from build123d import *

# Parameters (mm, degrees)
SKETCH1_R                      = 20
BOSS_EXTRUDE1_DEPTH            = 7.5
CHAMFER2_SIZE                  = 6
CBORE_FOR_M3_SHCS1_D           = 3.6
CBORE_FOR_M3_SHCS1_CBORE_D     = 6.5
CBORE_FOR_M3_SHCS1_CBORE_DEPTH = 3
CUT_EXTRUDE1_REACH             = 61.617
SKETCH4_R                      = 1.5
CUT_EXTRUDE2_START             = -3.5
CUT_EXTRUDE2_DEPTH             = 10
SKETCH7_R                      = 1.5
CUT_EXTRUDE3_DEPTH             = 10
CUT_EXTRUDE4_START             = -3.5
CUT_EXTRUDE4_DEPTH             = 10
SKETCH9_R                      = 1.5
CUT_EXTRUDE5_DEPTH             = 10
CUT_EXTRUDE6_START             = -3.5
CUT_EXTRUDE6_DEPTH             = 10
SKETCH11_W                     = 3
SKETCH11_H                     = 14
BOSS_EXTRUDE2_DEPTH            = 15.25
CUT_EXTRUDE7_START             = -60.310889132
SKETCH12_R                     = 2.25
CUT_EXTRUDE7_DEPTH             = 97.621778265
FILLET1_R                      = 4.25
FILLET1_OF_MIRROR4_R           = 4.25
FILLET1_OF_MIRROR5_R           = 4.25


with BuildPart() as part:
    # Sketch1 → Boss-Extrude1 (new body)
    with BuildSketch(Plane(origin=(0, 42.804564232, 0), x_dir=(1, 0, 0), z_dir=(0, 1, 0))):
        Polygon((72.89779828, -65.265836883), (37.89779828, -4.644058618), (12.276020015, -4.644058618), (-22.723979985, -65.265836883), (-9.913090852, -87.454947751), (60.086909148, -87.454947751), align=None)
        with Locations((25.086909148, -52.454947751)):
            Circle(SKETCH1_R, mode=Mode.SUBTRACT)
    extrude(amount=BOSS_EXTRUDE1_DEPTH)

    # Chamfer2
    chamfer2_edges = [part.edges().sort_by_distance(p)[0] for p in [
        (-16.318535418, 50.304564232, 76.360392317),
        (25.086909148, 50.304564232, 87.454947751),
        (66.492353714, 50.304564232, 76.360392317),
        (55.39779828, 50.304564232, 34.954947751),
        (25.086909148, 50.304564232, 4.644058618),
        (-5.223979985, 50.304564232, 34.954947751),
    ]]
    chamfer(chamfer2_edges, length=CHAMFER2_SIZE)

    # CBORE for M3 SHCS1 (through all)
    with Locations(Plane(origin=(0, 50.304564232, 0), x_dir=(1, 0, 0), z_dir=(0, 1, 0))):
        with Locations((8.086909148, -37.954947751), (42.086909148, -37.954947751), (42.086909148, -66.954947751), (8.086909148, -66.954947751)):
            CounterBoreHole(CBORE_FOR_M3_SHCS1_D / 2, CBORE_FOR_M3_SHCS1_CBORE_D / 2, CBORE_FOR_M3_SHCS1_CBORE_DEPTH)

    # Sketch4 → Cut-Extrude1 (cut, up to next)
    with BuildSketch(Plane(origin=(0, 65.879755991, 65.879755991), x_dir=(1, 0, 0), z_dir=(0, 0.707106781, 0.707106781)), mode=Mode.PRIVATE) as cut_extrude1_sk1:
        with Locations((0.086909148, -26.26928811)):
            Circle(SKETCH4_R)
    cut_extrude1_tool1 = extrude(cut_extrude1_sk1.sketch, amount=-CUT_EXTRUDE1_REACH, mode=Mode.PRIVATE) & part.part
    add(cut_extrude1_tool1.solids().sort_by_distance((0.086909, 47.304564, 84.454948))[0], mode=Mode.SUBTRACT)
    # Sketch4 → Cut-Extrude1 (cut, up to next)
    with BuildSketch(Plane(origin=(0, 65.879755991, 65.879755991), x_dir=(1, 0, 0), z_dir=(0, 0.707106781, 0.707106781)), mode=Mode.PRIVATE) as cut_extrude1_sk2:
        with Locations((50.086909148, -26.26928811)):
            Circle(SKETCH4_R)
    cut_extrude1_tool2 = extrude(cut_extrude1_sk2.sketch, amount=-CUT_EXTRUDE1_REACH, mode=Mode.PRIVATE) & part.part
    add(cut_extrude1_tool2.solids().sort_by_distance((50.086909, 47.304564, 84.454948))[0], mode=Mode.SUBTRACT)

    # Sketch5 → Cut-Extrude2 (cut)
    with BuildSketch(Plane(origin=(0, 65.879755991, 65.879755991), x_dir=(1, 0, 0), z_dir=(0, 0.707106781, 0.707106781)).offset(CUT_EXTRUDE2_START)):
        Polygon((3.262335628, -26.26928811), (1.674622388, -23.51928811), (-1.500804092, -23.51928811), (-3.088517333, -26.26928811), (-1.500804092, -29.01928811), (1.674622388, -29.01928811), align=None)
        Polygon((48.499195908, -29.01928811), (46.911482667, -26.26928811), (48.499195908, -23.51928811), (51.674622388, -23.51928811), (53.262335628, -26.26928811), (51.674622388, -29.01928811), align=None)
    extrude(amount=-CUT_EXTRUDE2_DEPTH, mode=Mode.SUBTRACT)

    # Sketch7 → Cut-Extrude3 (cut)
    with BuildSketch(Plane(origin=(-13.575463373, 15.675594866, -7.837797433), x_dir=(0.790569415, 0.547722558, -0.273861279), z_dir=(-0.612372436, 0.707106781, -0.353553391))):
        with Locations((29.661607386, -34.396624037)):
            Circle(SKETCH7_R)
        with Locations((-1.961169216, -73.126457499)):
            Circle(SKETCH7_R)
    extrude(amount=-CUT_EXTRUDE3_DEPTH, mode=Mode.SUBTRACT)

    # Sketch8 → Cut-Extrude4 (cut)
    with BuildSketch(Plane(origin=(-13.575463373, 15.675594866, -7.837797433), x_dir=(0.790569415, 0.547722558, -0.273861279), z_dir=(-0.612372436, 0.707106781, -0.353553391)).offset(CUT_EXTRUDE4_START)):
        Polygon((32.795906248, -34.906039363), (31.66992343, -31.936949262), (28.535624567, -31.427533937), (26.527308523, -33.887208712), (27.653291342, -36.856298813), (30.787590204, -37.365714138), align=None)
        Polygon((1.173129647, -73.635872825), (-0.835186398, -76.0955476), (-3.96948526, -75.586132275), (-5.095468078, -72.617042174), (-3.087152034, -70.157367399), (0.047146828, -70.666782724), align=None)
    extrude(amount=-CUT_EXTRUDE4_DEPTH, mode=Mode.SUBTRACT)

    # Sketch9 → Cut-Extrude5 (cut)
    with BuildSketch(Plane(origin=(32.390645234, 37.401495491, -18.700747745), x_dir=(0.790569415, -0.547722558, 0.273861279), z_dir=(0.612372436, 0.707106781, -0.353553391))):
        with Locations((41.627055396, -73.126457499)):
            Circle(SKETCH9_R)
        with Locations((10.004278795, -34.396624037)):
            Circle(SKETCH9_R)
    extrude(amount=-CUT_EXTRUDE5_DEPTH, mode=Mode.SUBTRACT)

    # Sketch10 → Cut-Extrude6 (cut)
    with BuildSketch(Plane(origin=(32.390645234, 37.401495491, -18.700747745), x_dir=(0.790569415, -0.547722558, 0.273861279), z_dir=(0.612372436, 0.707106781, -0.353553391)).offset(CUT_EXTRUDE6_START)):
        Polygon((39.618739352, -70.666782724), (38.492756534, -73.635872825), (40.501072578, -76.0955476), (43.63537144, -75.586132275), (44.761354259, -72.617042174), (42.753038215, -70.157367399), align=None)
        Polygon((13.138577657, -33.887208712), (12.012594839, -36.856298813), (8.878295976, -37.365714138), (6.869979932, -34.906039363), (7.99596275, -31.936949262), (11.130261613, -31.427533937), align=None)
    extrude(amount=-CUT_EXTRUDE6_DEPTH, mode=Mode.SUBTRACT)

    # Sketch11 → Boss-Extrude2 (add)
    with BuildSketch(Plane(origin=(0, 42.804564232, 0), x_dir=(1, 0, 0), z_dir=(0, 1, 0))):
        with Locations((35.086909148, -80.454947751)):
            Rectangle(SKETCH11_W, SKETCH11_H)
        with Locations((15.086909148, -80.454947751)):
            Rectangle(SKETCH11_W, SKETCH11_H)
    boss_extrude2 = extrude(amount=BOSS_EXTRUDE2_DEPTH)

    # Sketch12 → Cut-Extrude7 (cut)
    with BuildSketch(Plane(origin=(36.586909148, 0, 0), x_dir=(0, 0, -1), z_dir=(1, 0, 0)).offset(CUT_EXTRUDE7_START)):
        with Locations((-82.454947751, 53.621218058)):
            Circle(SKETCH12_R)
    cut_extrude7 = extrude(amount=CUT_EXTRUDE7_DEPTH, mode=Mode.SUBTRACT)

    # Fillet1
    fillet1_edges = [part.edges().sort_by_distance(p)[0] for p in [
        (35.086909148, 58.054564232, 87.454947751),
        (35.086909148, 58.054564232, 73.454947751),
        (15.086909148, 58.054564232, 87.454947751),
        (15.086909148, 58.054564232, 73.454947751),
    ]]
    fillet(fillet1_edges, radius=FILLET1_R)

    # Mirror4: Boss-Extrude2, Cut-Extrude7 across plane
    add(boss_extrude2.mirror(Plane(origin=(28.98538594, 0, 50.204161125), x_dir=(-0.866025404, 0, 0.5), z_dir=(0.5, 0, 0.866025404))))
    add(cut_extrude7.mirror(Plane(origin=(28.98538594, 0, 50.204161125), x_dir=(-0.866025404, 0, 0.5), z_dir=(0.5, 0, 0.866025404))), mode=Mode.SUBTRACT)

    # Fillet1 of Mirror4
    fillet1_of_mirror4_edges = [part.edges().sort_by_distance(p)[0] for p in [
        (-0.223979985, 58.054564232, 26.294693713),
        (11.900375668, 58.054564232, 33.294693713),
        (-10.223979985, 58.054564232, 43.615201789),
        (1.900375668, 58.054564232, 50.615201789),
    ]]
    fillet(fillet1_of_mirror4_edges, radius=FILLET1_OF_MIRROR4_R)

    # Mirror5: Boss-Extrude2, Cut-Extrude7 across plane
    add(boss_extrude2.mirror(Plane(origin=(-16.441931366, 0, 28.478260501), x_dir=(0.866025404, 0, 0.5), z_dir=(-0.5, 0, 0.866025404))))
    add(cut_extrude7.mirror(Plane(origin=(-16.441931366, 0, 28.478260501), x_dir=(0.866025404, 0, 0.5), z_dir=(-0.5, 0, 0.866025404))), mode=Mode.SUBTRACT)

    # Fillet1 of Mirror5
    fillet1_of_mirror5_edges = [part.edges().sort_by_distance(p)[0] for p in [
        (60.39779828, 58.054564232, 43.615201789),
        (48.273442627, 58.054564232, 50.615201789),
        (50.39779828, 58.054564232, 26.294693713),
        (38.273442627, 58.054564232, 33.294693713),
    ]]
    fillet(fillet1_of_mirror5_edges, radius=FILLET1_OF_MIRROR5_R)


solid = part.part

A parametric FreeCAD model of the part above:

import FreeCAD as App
import Part
import Sketcher

V = App.Vector
Q = App.Units.Quantity


def edges_at(feature, points):
    """Names of the edges that pass closest to the given points."""
    edges = feature.Shape.Edges
    near = lambda p: min(range(len(edges)), key=lambda i: edges[i].distToShape(Part.Vertex(*p))[0])
    return sorted({f"Edge{near(p) + 1}" for p in points})

doc = App.newDocument("Part")
body = doc.addObject("PartDesign::Body", "Body")

sketch1 = body.newObject("Sketcher::SketchObject", "Sketch")
sketch1.AttachmentSupport = (doc.getObject("XZ_Plane"), [""])
sketch1.MapMode = "FlatFace"
sketch1.AttachmentOffset = App.Placement(V(0, 0, -42.804564), App.Rotation())
sketch1.addGeometry([
    Part.LineSegment(V(72.897798, 65.265837, 0), V(37.897798, 4.644059, 0)),
    Part.LineSegment(V(37.897798, 4.644059, 0), V(12.27602, 4.644059, 0)),
    Part.LineSegment(V(12.27602, 4.644059, 0), V(-22.72398, 65.265837, 0)),
    Part.LineSegment(V(-22.72398, 65.265837, 0), V(-9.913091, 87.454948, 0)),
    Part.LineSegment(V(-9.913091, 87.454948, 0), V(60.086909, 87.454948, 0)),
    Part.LineSegment(V(60.086909, 87.454948, 0), V(72.897798, 65.265837, 0)),
    Part.Circle(V(25.086909, 52.454948, 0), V(0, 0, 1), 20),
], False)
sketch1.addConstraint([
    Sketcher.Constraint("Coincident", 0, 2, 1, 1),
    Sketcher.Constraint("Coincident", 1, 2, 2, 1),
    Sketcher.Constraint("Coincident", 2, 2, 3, 1),
    Sketcher.Constraint("Coincident", 3, 2, 4, 1),
    Sketcher.Constraint("Coincident", 4, 2, 5, 1),
    Sketcher.Constraint("Coincident", 5, 2, 0, 1),
    Sketcher.Constraint("Horizontal", 1),
    Sketcher.Constraint("Horizontal", 4),
    Sketcher.Constraint("Parallel", 0, 3),
    Sketcher.Constraint("Parallel", 2, 5),
    Sketcher.Constraint("Horizontal", 2, 2, 5, 2),
    Sketcher.Constraint("Equal", 0, 2),
    Sketcher.Constraint("Diameter", 6, 40.0),
    Sketcher.Constraint("DistanceX", 4, 1, 4, 2, 70.0),
    Sketcher.Constraint("Angle", 0, Q("-120 deg")),
    Sketcher.Constraint("Distance", 0, 70.0),
    Sketcher.Constraint("DistanceX", 3, 2, 6, 3, 35.0),
    Sketcher.Constraint("DistanceY", 6, 3, 3, 2, 35.0),
    Sketcher.Constraint("DistanceX", 1, 2, 1, 1, 25.621778),
    Sketcher.Constraint("DistanceX", -1, 1, 0, 2, 37.897798),
    Sketcher.Constraint("DistanceY", -1, 1, 0, 2, 4.644059),
])
pad1 = body.newObject("PartDesign::Pad", "Pad")
pad1.Profile = sketch1
pad1.Length = 7.5
pad1.Reversed = True
doc.recompute()

chamfer = body.newObject("PartDesign::Chamfer", "Chamfer")
chamfer.Base = (pad1, edges_at(pad1, [
    (-16.319, 50.305, 76.36),
    (25.087, 50.305, 87.455),
    (66.492, 50.305, 76.36),
    (55.398, 50.305, 34.955),
    (25.087, 50.305, 4.644),
    (-5.224, 50.305, 34.955),
]))
chamfer.Size = 6

sketch2 = body.newObject("Sketcher::SketchObject", "Sketch001")
sketch2.AttachmentSupport = (doc.getObject("XZ_Plane"), [""])
sketch2.MapMode = "FlatFace"
sketch2.AttachmentOffset = App.Placement(V(0, 0, -50.304564), App.Rotation())
sketch2.addGeometry([
    Part.Circle(V(8.086909, 37.954948, 0), V(0, 0, 1), 1.8),
    Part.Circle(V(42.086909, 37.954948, 0), V(0, 0, 1), 1.8),
    Part.Circle(V(42.086909, 66.954948, 0), V(0, 0, 1), 1.8),
    Part.Circle(V(8.086909, 66.954948, 0), V(0, 0, 1), 1.8),
], False)
sketch2.addConstraint([
    Sketcher.Constraint("Equal", 0, 1),
    Sketcher.Constraint("Equal", 1, 2),
    Sketcher.Constraint("Equal", 2, 3),
    Sketcher.Constraint("Horizontal", 0, 3, 1, 3),
    Sketcher.Constraint("Horizontal", 2, 3, 3, 3),
    Sketcher.Constraint("Vertical", 1, 3, 2, 3),
    Sketcher.Constraint("Vertical", 0, 3, 3, 3),
    Sketcher.Constraint("Diameter", 0, 3.6),
    Sketcher.Constraint("DistanceX", 0, 3, 1, 3, 34.0),
    Sketcher.Constraint("DistanceY", 1, 3, 2, 3, 29.0),
    Sketcher.Constraint("DistanceX", -1, 1, 0, 3, 8.086909),
    Sketcher.Constraint("DistanceY", -1, 1, 0, 3, 37.954948),
])
doc.recompute()
hole = body.newObject("PartDesign::Hole", "Hole")
hole.Profile = sketch2
hole.ThreadType = "None"
hole.Diameter = 3.6
hole.DepthType = "ThroughAll"
hole.HoleCutType = "Counterbore"
hole.HoleCutDiameter = 6.5
hole.HoleCutDepth = 3
hole.Reversed = True

sketch3 = body.newObject("Sketcher::SketchObject", "Sketch002")
sketch3.Placement = App.Placement(V(0, 65.879756, 65.879756), App.Rotation(V(1, 0, 0), V(0, 0.707106781, -0.707106781), V(0, 0.707106781, 0.707106781), "ZXY"))
sketch3.addGeometry(Part.Circle(V(0.086909, -26.269288, 0), V(0, 0, 1), 1.5), False)
sketch3.addConstraint([
    Sketcher.Constraint("Diameter", 0, 3.0),
    Sketcher.Constraint("DistanceX", -1, 1, 0, 3, 0.086909),
    Sketcher.Constraint("DistanceY", 0, 3, -1, 1, 26.269288),
])
pocket1 = body.newObject("PartDesign::Pocket", "Pocket")
pocket1.Profile = sketch3
pocket1.Type = "UpToFirst"

sketch4 = body.newObject("Sketcher::SketchObject", "Sketch003")
sketch4.Placement = App.Placement(V(0, 65.879756, 65.879756), App.Rotation(V(1, 0, 0), V(0, 0.707106781, -0.707106781), V(0, 0.707106781, 0.707106781), "ZXY"))
sketch4.addGeometry(Part.Circle(V(50.086909, -26.269288, 0), V(0, 0, 1), 1.5), False)
sketch4.addConstraint([
    Sketcher.Constraint("Diameter", 0, 3.0),
    Sketcher.Constraint("DistanceX", -1, 1, 0, 3, 50.086909),
    Sketcher.Constraint("DistanceY", 0, 3, -1, 1, 26.269288),
])
pocket2 = body.newObject("PartDesign::Pocket", "Pocket001")
pocket2.Profile = sketch4
pocket2.Type = "UpToFirst"

sketch5 = body.newObject("Sketcher::SketchObject", "Sketch004")
sketch5.Placement = App.Placement(V(0, 63.404882, 63.404882), App.Rotation(V(1, 0, 0), V(0, 0.707106781, -0.707106781), V(0, 0.707106781, 0.707106781), "ZXY"))
sketch5.addGeometry([
    Part.LineSegment(V(3.262336, -26.269288, 0), V(1.674622, -23.519288, 0)),
    Part.LineSegment(V(1.674622, -23.519288, 0), V(-1.500804, -23.519288, 0)),
    Part.LineSegment(V(-1.500804, -23.519288, 0), V(-3.088517, -26.269288, 0)),
    Part.LineSegment(V(-3.088517, -26.269288, 0), V(-1.500804, -29.019288, 0)),
    Part.LineSegment(V(-1.500804, -29.019288, 0), V(1.674622, -29.019288, 0)),
    Part.LineSegment(V(1.674622, -29.019288, 0), V(3.262336, -26.269288, 0)),
    Part.LineSegment(V(46.911483, -26.269288, 0), V(48.499196, -29.019288, 0)),
    Part.LineSegment(V(48.499196, -29.019288, 0), V(51.674622, -29.019288, 0)),
    Part.LineSegment(V(51.674622, -29.019288, 0), V(53.262336, -26.269288, 0)),
    Part.LineSegment(V(53.262336, -26.269288, 0), V(51.674622, -23.519288, 0)),
    Part.LineSegment(V(51.674622, -23.519288, 0), V(48.499196, -23.519288, 0)),
    Part.LineSegment(V(48.499196, -23.519288, 0), V(46.911483, -26.269288, 0)),
], False)
sketch5.addConstraint([
    Sketcher.Constraint("Coincident", 0, 2, 1, 1),
    Sketcher.Constraint("Coincident", 1, 2, 2, 1),
    Sketcher.Constraint("Coincident", 2, 2, 3, 1),
    Sketcher.Constraint("Coincident", 3, 2, 4, 1),
    Sketcher.Constraint("Coincident", 4, 2, 5, 1),
    Sketcher.Constraint("Coincident", 5, 2, 0, 1),
    Sketcher.Constraint("Coincident", 6, 2, 7, 1),
    Sketcher.Constraint("Coincident", 7, 2, 8, 1),
    Sketcher.Constraint("Coincident", 8, 2, 9, 1),
    Sketcher.Constraint("Coincident", 9, 2, 10, 1),
    Sketcher.Constraint("Coincident", 10, 2, 11, 1),
    Sketcher.Constraint("Coincident", 11, 2, 6, 1),
    Sketcher.Constraint("Horizontal", 1),
    Sketcher.Constraint("Horizontal", 4),
    Sketcher.Constraint("Horizontal", 7),
    Sketcher.Constraint("Horizontal", 10),
    Sketcher.Constraint("Parallel", 0, 3),
    Sketcher.Constraint("Parallel", 2, 5),
    Sketcher.Constraint("Parallel", 3, 6),
    Sketcher.Constraint("Parallel", 5, 8),
    Sketcher.Constraint("Parallel", 6, 9),
    Sketcher.Constraint("Parallel", 8, 11),
    Sketcher.Constraint("Horizontal", 2, 2, 5, 2),
    Sketcher.Constraint("Horizontal", 4, 2, 6, 2),
    Sketcher.Constraint("Horizontal", 5, 2, 8, 2),
    Sketcher.Constraint("Horizontal", 1, 2, 9, 2),
    Sketcher.Constraint("Horizontal", 8, 2, 11, 2),
    Sketcher.Constraint("Vertical", 1, 2, 3, 2),
    Sketcher.Constraint("Vertical", 0, 2, 4, 2),
    Sketcher.Constraint("Equal", 4, 7),
    Sketcher.Constraint("Angle", 0, Q("120 deg")),
    Sketcher.Constraint("DistanceX", 3, 2, 6, 2, 50.0),
    Sketcher.Constraint("DistanceY", 3, 2, 1, 2, 5.5),
    Sketcher.Constraint("DistanceX", 1, 2, 1, 1, 3.175426),
    Sketcher.Constraint("DistanceY", 0, 2, -1, 1, 23.519288),
    Sketcher.Constraint("DistanceX", -1, 1, 0, 2, 1.674622),
])
pocket3 = body.newObject("PartDesign::Pocket", "Pocket002")
pocket3.Profile = sketch5
pocket3.Length = 10

sketch6 = body.newObject("Sketcher::SketchObject", "Sketch005")
sketch6.Placement = App.Placement(V(-13.575463, 15.675595, -7.837797), App.Rotation(V(0.790569415, 0.547722558, -0.273861279), V(0, -0.447213596, -0.894427191), V(-0.612372436, 0.707106781, -0.353553391), "ZXY"))
sketch6.addGeometry([
    Part.Circle(V(29.661607, -34.396624, 0), V(0, 0, 1), 1.5),
    Part.Circle(V(-1.961169, -73.126458, 0), V(0, 0, 1), 1.5),
], False)
sketch6.addConstraint([
    Sketcher.Constraint("Equal", 0, 1),
    Sketcher.Constraint("Diameter", 0, 3.0),
    Sketcher.Constraint("DistanceX", 1, 3, -1, 1, 1.961169),
    Sketcher.Constraint("DistanceX", -1, 1, 0, 3, 29.661607),
    Sketcher.Constraint("DistanceY", 0, 3, -1, 1, 34.396624),
    Sketcher.Constraint("DistanceY", 1, 3, -1, 1, 73.126458),
])
pocket4 = body.newObject("PartDesign::Pocket", "Pocket003")
pocket4.Profile = sketch6
pocket4.Length = 10

sketch7 = body.newObject("Sketcher::SketchObject", "Sketch006")
sketch7.Placement = App.Placement(V(-11.43216, 13.200721, -6.600361), App.Rotation(V(0.790569415, 0.547722558, -0.273861279), V(0, -0.447213596, -0.894427191), V(-0.612372436, 0.707106781, -0.353553391), "ZXY"))
sketch7.addGeometry([
    Part.LineSegment(V(32.795906, -34.906039, 0), V(31.669923, -31.936949, 0)),
    Part.LineSegment(V(31.669923, -31.936949, 0), V(28.535625, -31.427534, 0)),
    Part.LineSegment(V(28.535625, -31.427534, 0), V(26.527309, -33.887209, 0)),
    Part.LineSegment(V(26.527309, -33.887209, 0), V(27.653291, -36.856299, 0)),
    Part.LineSegment(V(27.653291, -36.856299, 0), V(30.78759, -37.365714, 0)),
    Part.LineSegment(V(30.78759, -37.365714, 0), V(32.795906, -34.906039, 0)),
    Part.LineSegment(V(-0.835186, -76.095548, 0), V(1.17313, -73.635873, 0)),
    Part.LineSegment(V(1.17313, -73.635873, 0), V(0.047147, -70.666783, 0)),
    Part.LineSegment(V(0.047147, -70.666783, 0), V(-3.087152, -70.157367, 0)),
    Part.LineSegment(V(-3.087152, -70.157367, 0), V(-5.095468, -72.617042, 0)),
    Part.LineSegment(V(-5.095468, -72.617042, 0), V(-3.969485, -75.586132, 0)),
    Part.LineSegment(V(-3.969485, -75.586132, 0), V(-0.835186, -76.095548, 0)),
], False)
sketch7.addConstraint([
    Sketcher.Constraint("Coincident", 0, 2, 1, 1),
    Sketcher.Constraint("Coincident", 1, 2, 2, 1),
    Sketcher.Constraint("Coincident", 2, 2, 3, 1),
    Sketcher.Constraint("Coincident", 3, 2, 4, 1),
    Sketcher.Constraint("Coincident", 4, 2, 5, 1),
    Sketcher.Constraint("Coincident", 5, 2, 0, 1),
    Sketcher.Constraint("Coincident", 6, 2, 7, 1),
    Sketcher.Constraint("Coincident", 7, 2, 8, 1),
    Sketcher.Constraint("Coincident", 8, 2, 9, 1),
    Sketcher.Constraint("Coincident", 9, 2, 10, 1),
    Sketcher.Constraint("Coincident", 10, 2, 11, 1),
    Sketcher.Constraint("Coincident", 11, 2, 6, 1),
    Sketcher.Constraint("Parallel", 0, 3),
    Sketcher.Constraint("Parallel", 1, 4),
    Sketcher.Constraint("Parallel", 2, 5),
    Sketcher.Constraint("Parallel", 5, 6),
    Sketcher.Constraint("Parallel", 3, 7),
    Sketcher.Constraint("Parallel", 4, 8),
    Sketcher.Constraint("Parallel", 6, 9),
    Sketcher.Constraint("Parallel", 7, 10),
    Sketcher.Constraint("Parallel", 8, 11),
    Sketcher.Constraint("Equal", 0, 1),
    Sketcher.Constraint("Equal", 1, 2),
    Sketcher.Constraint("Equal", 2, 3),
    Sketcher.Constraint("Equal", 5, 6),
    Sketcher.Constraint("Equal", 6, 7),
    Sketcher.Constraint("Equal", 7, 8),
    Sketcher.Constraint("Equal", 8, 9),
    Sketcher.Constraint("DistanceY", 3, 2, -1, 1, 36.856299),
    Sketcher.Constraint("DistanceX", 1, 2, 0, 2, 3.134299),
    Sketcher.Constraint("DistanceY", 0, 2, -1, 1, 31.936949),
    Sketcher.Constraint("DistanceX", -1, 1, 2, 2, 26.527309),
    Sketcher.Constraint("DistanceY", 2, 2, -1, 1, 33.887209),
    Sketcher.Constraint("DistanceX", -1, 1, 3, 2, 27.653291),
    Sketcher.Constraint("DistanceX", -1, 1, 6, 2, 1.17313),
    Sketcher.Constraint("DistanceY", 6, 2, 4, 2, 36.270159),
])
pocket5 = body.newObject("PartDesign::Pocket", "Pocket004")
pocket5.Profile = sketch7
pocket5.Length = 10

sketch8 = body.newObject("Sketcher::SketchObject", "Sketch007")
sketch8.Placement = App.Placement(V(32.390645, 37.401495, -18.700748), App.Rotation(V(0.790569415, -0.547722558, 0.273861279), V(0, -0.447213596, -0.894427191), V(0.612372436, 0.707106781, -0.353553391), "ZXY"))
sketch8.addGeometry([
    Part.Circle(V(41.627055, -73.126458, 0), V(0, 0, 1), 1.5),
    Part.Circle(V(10.004279, -34.396624, 0), V(0, 0, 1), 1.5),
], False)
sketch8.addConstraint([
    Sketcher.Constraint("Equal", 0, 1),
    Sketcher.Constraint("Diameter", 0, 3.0),
    Sketcher.Constraint("DistanceX", -1, 1, 1, 3, 10.004279),
    Sketcher.Constraint("DistanceX", -1, 1, 0, 3, 41.627055),
    Sketcher.Constraint("DistanceY", 0, 3, -1, 1, 73.126458),
    Sketcher.Constraint("DistanceY", 1, 3, -1, 1, 34.396624),
])
pocket6 = body.newObject("PartDesign::Pocket", "Pocket005")
pocket6.Profile = sketch8
pocket6.Length = 10

sketch9 = body.newObject("Sketcher::SketchObject", "Sketch008")
sketch9.Placement = App.Placement(V(30.247342, 34.926622, -17.463311), App.Rotation(V(0.790569415, -0.547722558, 0.273861279), V(0, -0.447213596, -0.894427191), V(0.612372436, 0.707106781, -0.353553391), "ZXY"))
sketch9.addGeometry([
    Part.LineSegment(V(39.618739, -70.666783, 0), V(38.492757, -73.635873, 0)),
    Part.LineSegment(V(38.492757, -73.635873, 0), V(40.501073, -76.095548, 0)),
    Part.LineSegment(V(40.501073, -76.095548, 0), V(43.635371, -75.586132, 0)),
    Part.LineSegment(V(43.635371, -75.586132, 0), V(44.761354, -72.617042, 0)),
    Part.LineSegment(V(44.761354, -72.617042, 0), V(42.753038, -70.157367, 0)),
    Part.LineSegment(V(42.753038, -70.157367, 0), V(39.618739, -70.666783, 0)),
    Part.LineSegment(V(12.012595, -36.856299, 0), V(13.138578, -33.887209, 0)),
    Part.LineSegment(V(13.138578, -33.887209, 0), V(11.130262, -31.427534, 0)),
    Part.LineSegment(V(11.130262, -31.427534, 0), V(7.995963, -31.936949, 0)),
    Part.LineSegment(V(7.995963, -31.936949, 0), V(6.86998, -34.906039, 0)),
    Part.LineSegment(V(6.86998, -34.906039, 0), V(8.878296, -37.365714, 0)),
    Part.LineSegment(V(8.878296, -37.365714, 0), V(12.012595, -36.856299, 0)),
], False)
sketch9.addConstraint([
    Sketcher.Constraint("Coincident", 0, 2, 1, 1),
    Sketcher.Constraint("Coincident", 1, 2, 2, 1),
    Sketcher.Constraint("Coincident", 2, 2, 3, 1),
    Sketcher.Constraint("Coincident", 3, 2, 4, 1),
    Sketcher.Constraint("Coincident", 4, 2, 5, 1),
    Sketcher.Constraint("Coincident", 5, 2, 0, 1),
    Sketcher.Constraint("Coincident", 6, 2, 7, 1),
    Sketcher.Constraint("Coincident", 7, 2, 8, 1),
    Sketcher.Constraint("Coincident", 8, 2, 9, 1),
    Sketcher.Constraint("Coincident", 9, 2, 10, 1),
    Sketcher.Constraint("Coincident", 10, 2, 11, 1),
    Sketcher.Constraint("Coincident", 11, 2, 6, 1),
    Sketcher.Constraint("Parallel", 0, 3),
    Sketcher.Constraint("Parallel", 1, 4),
    Sketcher.Constraint("Parallel", 2, 5),
    Sketcher.Constraint("Parallel", 3, 6),
    Sketcher.Constraint("Parallel", 4, 7),
    Sketcher.Constraint("Parallel", 5, 8),
    Sketcher.Constraint("Parallel", 6, 9),
    Sketcher.Constraint("Parallel", 7, 10),
    Sketcher.Constraint("Parallel", 8, 11),
    Sketcher.Constraint("Equal", 0, 1),
    Sketcher.Constraint("Equal", 1, 2),
    Sketcher.Constraint("Equal", 2, 3),
    Sketcher.Constraint("Equal", 5, 6),
    Sketcher.Constraint("Equal", 6, 7),
    Sketcher.Constraint("Equal", 7, 8),
    Sketcher.Constraint("Equal", 8, 9),
    Sketcher.Constraint("DistanceY", 11, 2, -1, 1, 36.856299),
    Sketcher.Constraint("DistanceX", 1, 2, 2, 2, 3.134299),
    Sketcher.Constraint("DistanceX", -1, 1, 2, 2, 43.635371),
    Sketcher.Constraint("DistanceX", -1, 1, 4, 2, 42.753038),
    Sketcher.Constraint("DistanceY", 6, 2, -1, 1, 33.887209),
    Sketcher.Constraint("DistanceX", -1, 1, 7, 2, 11.130262),
    Sketcher.Constraint("DistanceY", 8, 2, -1, 1, 31.936949),
    Sketcher.Constraint("DistanceY", 4, 2, 6, 2, 36.270159),
])
pocket7 = body.newObject("PartDesign::Pocket", "Pocket006")
pocket7.Profile = sketch9
pocket7.Length = 10

sketch10 = body.newObject("Sketcher::SketchObject", "Sketch009")
sketch10.AttachmentSupport = (doc.getObject("XZ_Plane"), [""])
sketch10.MapMode = "FlatFace"
sketch10.AttachmentOffset = App.Placement(V(0, 0, -42.804564), App.Rotation())
sketch10.addGeometry([
    Part.LineSegment(V(33.586909, 73.454948, 0), V(33.586909, 87.454948, 0)),
    Part.LineSegment(V(33.586909, 87.454948, 0), V(36.586909, 87.454948, 0)),
    Part.LineSegment(V(36.586909, 87.454948, 0), V(36.586909, 73.454948, 0)),
    Part.LineSegment(V(36.586909, 73.454948, 0), V(33.586909, 73.454948, 0)),
    Part.LineSegment(V(13.586909, 73.454948, 0), V(13.586909, 87.454948, 0)),
    Part.LineSegment(V(13.586909, 87.454948, 0), V(16.586909, 87.454948, 0)),
    Part.LineSegment(V(16.586909, 87.454948, 0), V(16.586909, 73.454948, 0)),
    Part.LineSegment(V(16.586909, 73.454948, 0), V(13.586909, 73.454948, 0)),
], False)
sketch10.addConstraint([
    Sketcher.Constraint("Coincident", 0, 2, 1, 1),
    Sketcher.Constraint("Coincident", 1, 2, 2, 1),
    Sketcher.Constraint("Coincident", 2, 2, 3, 1),
    Sketcher.Constraint("Coincident", 3, 2, 0, 1),
    Sketcher.Constraint("Coincident", 4, 2, 5, 1),
    Sketcher.Constraint("Coincident", 5, 2, 6, 1),
    Sketcher.Constraint("Coincident", 6, 2, 7, 1),
    Sketcher.Constraint("Coincident", 7, 2, 4, 1),
    Sketcher.Constraint("Vertical", 0),
    Sketcher.Constraint("Horizontal", 1),
    Sketcher.Constraint("Vertical", 2),
    Sketcher.Constraint("Horizontal", 3),
    Sketcher.Constraint("Vertical", 4),
    Sketcher.Constraint("Horizontal", 5),
    Sketcher.Constraint("Vertical", 6),
    Sketcher.Constraint("Horizontal", 7),
    Sketcher.Constraint("Horizontal", 1, 2, 4, 2),
    Sketcher.Constraint("Horizontal", 3, 2, 6, 2),
    Sketcher.Constraint("Equal", 3, 5),
    Sketcher.Constraint("DistanceX", 1, 1, 1, 2, 3.0),
    Sketcher.Constraint("DistanceY", 0, 1, 0, 2, 14.0),
    Sketcher.Constraint("DistanceX", 4, 2, 0, 2, 20.0),
    Sketcher.Constraint("DistanceX", -1, 1, 0, 2, 33.586909),
    Sketcher.Constraint("DistanceY", -1, 1, 0, 2, 87.454948),
])
pad2 = body.newObject("PartDesign::Pad", "Pad001")
pad2.Profile = sketch10
pad2.Length = 15.25
pad2.Reversed = True

sketch11 = body.newObject("Sketcher::SketchObject", "Sketch010")
sketch11.AttachmentSupport = (doc.getObject("YZ_Plane"), [""])
sketch11.MapMode = "FlatFace"
sketch11.AttachmentOffset = App.Placement(V(0, 0, -23.72398), App.Rotation())
sketch11.addGeometry(Part.Circle(V(53.621218, 82.454948, 0), V(0, 0, 1), 2.25), False)
sketch11.addConstraint([
    Sketcher.Constraint("Diameter", 0, 4.5),
    Sketcher.Constraint("DistanceX", -1, 1, 0, 3, 53.621218),
    Sketcher.Constraint("DistanceY", -1, 1, 0, 3, 82.454948),
])
pocket8 = body.newObject("PartDesign::Pocket", "Pocket007")
pocket8.Profile = sketch11
pocket8.Length = 97.621778
pocket8.Reversed = True
doc.recompute()

fillet = body.newObject("PartDesign::Fillet", "Fillet")
fillet.Base = (pocket8, edges_at(pocket8, [
    (35.087, 58.055, 87.455),
    (35.087, 58.055, 73.455),
    (15.087, 58.055, 87.455),
    (15.087, 58.055, 73.455),
]))
fillet.Radius = 4.25
doc.recompute()

datumplane = body.newObject("PartDesign::Plane", "DatumPlane")
datumplane.Placement = App.Placement(V(28.985386, 0, 50.204161), App.Rotation(V(-0.866025404, 0, 0.5), V(0, -1, 0), V(0.5, 0, 0.866025404), "ZXY"))
mirrored = body.newObject("PartDesign::Mirrored", "Mirrored")
mirrored.Originals = [pad2, pocket8]
mirrored.MirrorPlane = (datumplane, [""])
body.Tip = mirrored
doc.recompute()

fillet2 = body.newObject("PartDesign::Fillet", "Fillet001")
fillet2.Base = (mirrored, edges_at(mirrored, [
    (-0.224, 58.055, 26.295),
    (11.9, 58.055, 33.295),
    (-10.224, 58.055, 43.615),
    (1.9, 58.055, 50.615),
]))
fillet2.Radius = 4.25
doc.recompute()

datumplane2 = body.newObject("PartDesign::Plane", "DatumPlane001")
datumplane2.Placement = App.Placement(V(-16.441931, 0, 28.478261), App.Rotation(V(-0.866025404, 0, -0.5), V(0, -1, 0), V(-0.5, 0, 0.866025404), "ZXY"))
mirrored2 = body.newObject("PartDesign::Mirrored", "Mirrored001")
mirrored2.Originals = [pad2, pocket8]
mirrored2.MirrorPlane = (datumplane2, [""])
body.Tip = mirrored2
doc.recompute()

fillet3 = body.newObject("PartDesign::Fillet", "Fillet002")
fillet3.Base = (mirrored2, edges_at(mirrored2, [
    (60.398, 58.055, 43.615),
    (48.273, 58.055, 50.615),
    (50.398, 58.055, 26.295),
    (38.273, 58.055, 33.295),
]))
fillet3.Radius = 4.25

doc.recompute()
